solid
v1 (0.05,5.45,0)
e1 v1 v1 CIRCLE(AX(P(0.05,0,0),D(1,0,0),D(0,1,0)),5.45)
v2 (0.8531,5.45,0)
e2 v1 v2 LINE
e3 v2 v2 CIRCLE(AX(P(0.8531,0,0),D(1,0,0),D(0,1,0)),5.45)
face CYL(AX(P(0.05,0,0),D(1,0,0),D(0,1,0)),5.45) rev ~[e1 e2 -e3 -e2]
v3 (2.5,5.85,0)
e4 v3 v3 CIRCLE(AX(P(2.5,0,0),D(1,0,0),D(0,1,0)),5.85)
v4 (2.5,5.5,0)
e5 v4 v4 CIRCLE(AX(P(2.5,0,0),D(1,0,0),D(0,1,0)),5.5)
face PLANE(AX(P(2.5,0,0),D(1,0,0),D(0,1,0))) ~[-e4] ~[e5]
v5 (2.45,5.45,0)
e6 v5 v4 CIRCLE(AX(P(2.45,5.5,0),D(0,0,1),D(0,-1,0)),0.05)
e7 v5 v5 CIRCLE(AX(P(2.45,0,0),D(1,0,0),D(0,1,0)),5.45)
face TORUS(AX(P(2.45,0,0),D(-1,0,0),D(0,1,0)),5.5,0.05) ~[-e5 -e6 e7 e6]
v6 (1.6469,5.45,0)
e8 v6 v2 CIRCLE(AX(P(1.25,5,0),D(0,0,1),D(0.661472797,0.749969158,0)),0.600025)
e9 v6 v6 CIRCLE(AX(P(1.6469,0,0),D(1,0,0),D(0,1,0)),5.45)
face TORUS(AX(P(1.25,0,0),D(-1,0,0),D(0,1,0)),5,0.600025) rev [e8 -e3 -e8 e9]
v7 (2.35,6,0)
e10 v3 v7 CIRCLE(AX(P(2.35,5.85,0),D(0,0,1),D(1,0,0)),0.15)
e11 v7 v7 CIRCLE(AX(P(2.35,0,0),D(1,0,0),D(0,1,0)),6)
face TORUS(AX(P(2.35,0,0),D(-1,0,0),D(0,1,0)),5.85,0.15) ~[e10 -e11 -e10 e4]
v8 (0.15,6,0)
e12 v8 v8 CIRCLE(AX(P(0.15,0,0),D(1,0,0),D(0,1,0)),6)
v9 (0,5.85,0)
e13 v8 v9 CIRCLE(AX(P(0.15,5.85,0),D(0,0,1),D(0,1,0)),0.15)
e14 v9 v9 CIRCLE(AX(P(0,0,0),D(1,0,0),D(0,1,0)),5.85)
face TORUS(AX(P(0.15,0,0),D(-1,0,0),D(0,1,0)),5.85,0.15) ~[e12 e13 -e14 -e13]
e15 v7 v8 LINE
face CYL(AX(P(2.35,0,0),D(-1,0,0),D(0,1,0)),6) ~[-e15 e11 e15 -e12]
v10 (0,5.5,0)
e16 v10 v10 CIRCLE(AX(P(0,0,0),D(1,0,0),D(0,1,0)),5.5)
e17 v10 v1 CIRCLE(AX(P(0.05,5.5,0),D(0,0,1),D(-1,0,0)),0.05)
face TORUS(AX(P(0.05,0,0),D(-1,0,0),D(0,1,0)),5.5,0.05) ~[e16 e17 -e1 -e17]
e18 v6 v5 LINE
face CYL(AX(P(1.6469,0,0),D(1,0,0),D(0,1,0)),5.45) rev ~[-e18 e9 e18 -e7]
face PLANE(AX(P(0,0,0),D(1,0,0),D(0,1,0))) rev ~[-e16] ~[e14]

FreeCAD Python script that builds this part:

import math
import FreeCAD as App
import Part
import Sketcher
Q = App.Units.Quantity

doc = App.newDocument("Part")
params = doc.addObject("Spreadsheet::Sheet", "Params")
for row, (alias, value) in enumerate([
    ("sketch1_radius", "0.6 mm"),
    ("sketch1_radius2", "0.05 mm"),
    ("sketch1_radius3", "0.15 mm"),
    ("sketch1_width", "2.2 mm"),
    ("sketch1_height", "0.35 mm"),
    ("revolution_angle", "360 deg"),
], start=1):
    params.set(f"A{row}", alias)
    params.set(f"B{row}", "=" + value)
    params.setAlias(f"B{row}", alias)

body = doc.addObject("PartDesign::Body", "Body")

sketch1 = body.newObject("Sketcher::SketchObject", "Sketch")
sketch1.AttachmentSupport = (doc.getObject("XY_Plane"), [""])
sketch1.MapMode = "FlatFace"
sketch1.addGeometry([
    Part.LineSegment(App.Vector(0, 5.85, 0), App.Vector(0, 5.5, 0)),
    Part.ArcOfCircle(Part.Circle(App.Vector(0.05, 5.5, 0), App.Vector(0, 0, 1), 0.05), math.radians(180), math.radians(270)),
    Part.LineSegment(App.Vector(0.05, 5.45, 0), App.Vector(0.853, 5.45, 0)),
    Part.ArcOfCircle(Part.Circle(App.Vector(1.25, 5, 0), App.Vector(0, 0, 1), 0.6), math.radians(49), math.radians(131)),
    Part.LineSegment(App.Vector(1.647, 5.45, 0), App.Vector(2.45, 5.45, 0)),
    Part.ArcOfCircle(Part.Circle(App.Vector(2.45, 5.5, 0), App.Vector(0, 0, 1), 0.05), math.radians(-90), math.radians(0)),
    Part.LineSegment(App.Vector(2.5, 5.5, 0), App.Vector(2.5, 5.85, 0)),
    Part.ArcOfCircle(Part.Circle(App.Vector(2.35, 5.85, 0), App.Vector(0, 0, 1), 0.15), math.radians(0), math.radians(90)),
    Part.LineSegment(App.Vector(2.35, 6, 0), App.Vector(0.15, 6, 0)),
    Part.ArcOfCircle(Part.Circle(App.Vector(0.15, 5.85, 0), App.Vector(0, 0, 1), 0.15), math.radians(90), math.radians(180)),
], False)
sketch1.addConstraint([
    Sketcher.Constraint("Tangent", 0, 2, 1, 1),
    Sketcher.Constraint("Tangent", 1, 2, 2, 1),
    Sketcher.Constraint("Coincident", 2, 2, 3, 2),
    Sketcher.Constraint("Coincident", 3, 1, 4, 1),
    Sketcher.Constraint("Tangent", 4, 2, 5, 1),
    Sketcher.Constraint("Tangent", 5, 2, 6, 1),
    Sketcher.Constraint("Tangent", 6, 2, 7, 1),
    Sketcher.Constraint("Tangent", 7, 2, 8, 1),
    Sketcher.Constraint("Tangent", 8, 2, 9, 1),
    Sketcher.Constraint("Tangent", 9, 2, 0, 1),
    Sketcher.Constraint("Vertical", 0),
    Sketcher.Constraint("Horizontal", 2),
    Sketcher.Constraint("Horizontal", 4),
    Sketcher.Constraint("Vertical", 6),
    Sketcher.Constraint("Horizontal", 8),
    Sketcher.Constraint("Equal", 1, 5),
    Sketcher.Constraint("Equal", 7, 9),
    Sketcher.Constraint("PointOnObject", 0, 2, -2),
    Sketcher.Constraint("Horizontal", 1, 3, 5, 3),
    Sketcher.Constraint("Equal", 2, 4),
    Sketcher.Constraint("Radius", 3, Q("0.6 mm")),
    Sketcher.Constraint("Radius", 1, Q("0.05 mm")),
    Sketcher.Constraint("Radius", 7, Q("0.15 mm")),
    Sketcher.Constraint("DistanceX", 8, 2, 8, 1, Q("2.2 mm")),
    Sketcher.Constraint("DistanceY", -1, 1, 3, 3, Q("5 mm")),
    Sketcher.Constraint("DistanceY", -1, 1, 7, 2, Q("6 mm")),
    Sketcher.Constraint("DistanceY", 0, 2, 0, 1, Q("0.35 mm")),
])
sketch1.setExpression("Constraints[20]", "Params.sketch1_radius")
sketch1.setExpression("Constraints[21]", "Params.sketch1_radius2")
sketch1.setExpression("Constraints[22]", "Params.sketch1_radius3")
sketch1.setExpression("Constraints[23]", "Params.sketch1_width")
sketch1.setExpression("Constraints[26]", "Params.sketch1_height")
revolution = body.newObject("PartDesign::Revolution", "Revolution")
revolution.Profile = sketch1
revolution.ReferenceAxis = (sketch1, ["H_Axis"])
revolution.setExpression("Angle", "Params.revolution_angle")

doc.recompute()
